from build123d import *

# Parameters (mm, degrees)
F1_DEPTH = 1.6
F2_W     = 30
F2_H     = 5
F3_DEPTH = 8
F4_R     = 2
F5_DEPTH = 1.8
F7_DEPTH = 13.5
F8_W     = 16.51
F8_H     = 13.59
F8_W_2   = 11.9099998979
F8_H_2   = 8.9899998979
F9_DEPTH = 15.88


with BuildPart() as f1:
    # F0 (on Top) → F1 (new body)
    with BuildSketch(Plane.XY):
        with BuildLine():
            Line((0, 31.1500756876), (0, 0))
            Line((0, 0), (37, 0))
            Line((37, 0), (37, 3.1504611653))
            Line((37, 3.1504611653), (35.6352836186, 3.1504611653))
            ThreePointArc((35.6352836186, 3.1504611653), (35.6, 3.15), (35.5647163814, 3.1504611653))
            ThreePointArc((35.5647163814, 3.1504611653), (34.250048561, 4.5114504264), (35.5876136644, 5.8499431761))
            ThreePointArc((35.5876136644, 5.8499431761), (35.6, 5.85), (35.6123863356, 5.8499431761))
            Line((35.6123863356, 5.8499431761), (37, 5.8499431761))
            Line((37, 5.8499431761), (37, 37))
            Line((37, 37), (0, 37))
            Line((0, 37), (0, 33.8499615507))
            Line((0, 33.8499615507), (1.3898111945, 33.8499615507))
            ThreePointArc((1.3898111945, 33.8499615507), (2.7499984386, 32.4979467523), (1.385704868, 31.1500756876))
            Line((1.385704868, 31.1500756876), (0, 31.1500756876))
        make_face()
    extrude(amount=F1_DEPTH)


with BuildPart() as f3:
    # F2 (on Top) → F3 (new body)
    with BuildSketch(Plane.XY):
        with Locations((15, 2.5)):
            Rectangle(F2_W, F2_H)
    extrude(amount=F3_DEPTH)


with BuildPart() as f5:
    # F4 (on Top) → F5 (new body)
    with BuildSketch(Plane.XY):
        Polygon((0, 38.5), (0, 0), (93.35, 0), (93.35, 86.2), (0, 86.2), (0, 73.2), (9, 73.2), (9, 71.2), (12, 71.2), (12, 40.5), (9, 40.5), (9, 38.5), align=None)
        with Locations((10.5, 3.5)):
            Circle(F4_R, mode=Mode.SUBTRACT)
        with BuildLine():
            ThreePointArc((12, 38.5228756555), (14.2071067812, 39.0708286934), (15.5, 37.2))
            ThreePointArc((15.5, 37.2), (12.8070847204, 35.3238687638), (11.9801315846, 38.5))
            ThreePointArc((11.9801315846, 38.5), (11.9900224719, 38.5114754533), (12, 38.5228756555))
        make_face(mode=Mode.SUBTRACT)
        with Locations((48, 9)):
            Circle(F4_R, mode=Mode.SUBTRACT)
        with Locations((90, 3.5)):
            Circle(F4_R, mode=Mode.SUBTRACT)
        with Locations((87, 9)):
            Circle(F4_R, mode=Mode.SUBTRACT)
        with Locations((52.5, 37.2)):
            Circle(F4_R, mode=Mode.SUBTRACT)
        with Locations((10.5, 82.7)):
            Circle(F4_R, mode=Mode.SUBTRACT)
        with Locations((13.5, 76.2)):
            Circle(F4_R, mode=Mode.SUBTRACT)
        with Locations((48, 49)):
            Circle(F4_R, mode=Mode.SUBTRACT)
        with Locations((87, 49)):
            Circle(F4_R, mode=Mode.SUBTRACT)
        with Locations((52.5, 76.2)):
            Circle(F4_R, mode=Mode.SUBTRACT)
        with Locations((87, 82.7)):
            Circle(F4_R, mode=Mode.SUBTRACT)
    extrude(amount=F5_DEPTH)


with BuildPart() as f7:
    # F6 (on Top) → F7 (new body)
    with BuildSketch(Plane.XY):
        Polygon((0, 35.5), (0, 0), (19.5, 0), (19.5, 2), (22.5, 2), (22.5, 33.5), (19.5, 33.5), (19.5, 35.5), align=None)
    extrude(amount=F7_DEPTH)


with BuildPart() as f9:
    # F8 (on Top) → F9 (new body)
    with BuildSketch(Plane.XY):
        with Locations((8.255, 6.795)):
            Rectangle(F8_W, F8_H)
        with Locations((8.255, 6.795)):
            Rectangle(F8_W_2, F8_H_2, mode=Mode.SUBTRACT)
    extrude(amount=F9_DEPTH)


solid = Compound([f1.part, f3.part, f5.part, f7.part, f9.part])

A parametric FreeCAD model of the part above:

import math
import FreeCAD as App
import Part
import Sketcher
from FreeCAD import Vector

doc = App.newDocument("Part")
params = doc.addObject("Spreadsheet::Sheet", "Params")
for row, (alias, value) in enumerate([
    ("sketch1_width", "37 mm"),
    ("sketch1_radius", "1.35 mm"),
    ("pad1_length", "1.6 mm"),
    ("sketch2_width", "30 mm"),
    ("sketch2_height", "5 mm"),
    ("pad2_length", "8 mm"),
    ("sketch3_diameter", "4 mm"),
    ("sketch3_width", "9 mm"),
    ("sketch3_width2", "3 mm"),
    ("sketch3_height", "13 mm"),
    ("sketch3_height2", "2 mm"),
    ("pad3_length", "1.8 mm"),
    ("sketch4_width", "3 mm"),
    ("sketch4_height", "2 mm"),
    ("sketch4_width2", "19.5 mm"),
    ("sketch4_height2", "35.5 mm"),
    ("pad4_length", "13.5 mm"),
    ("sketch5_width", "16.51 mm"),
    ("sketch5_width2", "11.91 mm"),
    ("sketch5_height", "13.59 mm"),
    ("sketch5_height2", "8.99 mm"),
    ("pad5_length", "15.88 mm"),
], start=1):
    params.set(f"A{row}", alias)
    params.set(f"B{row}", "=" + value)
    params.setAlias(f"B{row}", alias)

body = doc.addObject("PartDesign::Body", "Body")

# Sketch on XY plane
sketch1 = doc.addObject("Sketcher::SketchObject", "Sketch")
body.addObject(sketch1)
sketch1.AttachmentSupport = (doc.XY_Plane, [""])
sketch1.MapMode = "FlatFace"
sketch1.addGeometry(Part.LineSegment(Vector(0, 31.15, 0), Vector(0, 0, 0)), False)
sketch1.addGeometry(Part.LineSegment(Vector(0, 0, 0), Vector(37, 0, 0)), False)
sketch1.addGeometry(Part.LineSegment(Vector(37, 0, 0), Vector(37, 3.15, 0)), False)
sketch1.addGeometry(Part.LineSegment(Vector(37, 3.15, 0), Vector(35.635, 3.15, 0)), False)
sketch1.addGeometry(Part.ArcOfCircle(Part.Circle(Vector(35.6, 4.5, 0), Vector(0, 0, 1), 1.35), math.radians(-91.5), math.radians(-88.5)), False)
sketch1.addGeometry(Part.ArcOfCircle(Part.Circle(Vector(35.6, 4.5, 0), Vector(0, 0, 1), 1.35), math.radians(91), math.radians(269)), False)
sketch1.addGeometry(Part.ArcOfCircle(Part.Circle(Vector(35.6, 4.5, 0), Vector(0, 0, 1), 1.35), math.radians(89.47), math.radians(90.53)), False)
sketch1.addGeometry(Part.LineSegment(Vector(35.612, 5.85, 0), Vector(37, 5.85, 0)), False)
sketch1.addGeometry(Part.LineSegment(Vector(37, 5.85, 0), Vector(37, 37, 0)), False)
sketch1.addGeometry(Part.LineSegment(Vector(37, 37, 0), Vector(0, 37, 0)), False)
sketch1.addGeometry(Part.LineSegment(Vector(0, 37, 0), Vector(0, 33.85, 0)), False)
sketch1.addGeometry(Part.LineSegment(Vector(0, 33.85, 0), Vector(1.39, 33.85, 0)), False)
sketch1.addGeometry(Part.ArcOfCircle(Part.Circle(Vector(1.4, 32.5, 0), Vector(0, 0, 1), 1.35), math.radians(-91), math.radians(90)), False)
sketch1.addGeometry(Part.LineSegment(Vector(1.386, 31.15, 0), Vector(0, 31.15, 0)), False)
sketch1.addConstraint(Sketcher.Constraint("Coincident", 0, 2, 1, 1))
sketch1.addConstraint(Sketcher.Constraint("Coincident", 1, 2, 2, 1))
sketch1.addConstraint(Sketcher.Constraint("Coincident", 2, 2, 3, 1))
sketch1.addConstraint(Sketcher.Constraint("Coincident", 3, 2, 4, 2))
sketch1.addConstraint(Sketcher.Constraint("Tangent", 4, 1, 5, 2))
sketch1.addConstraint(Sketcher.Constraint("Tangent", 5, 1, 6, 2))
sketch1.addConstraint(Sketcher.Constraint("Coincident", 6, 1, 7, 1))
sketch1.addConstraint(Sketcher.Constraint("Coincident", 7, 2, 8, 1))
sketch1.addConstraint(Sketcher.Constraint("Coincident", 8, 2, 9, 1))
sketch1.addConstraint(Sketcher.Constraint("Coincident", 9, 2, 10, 1))
sketch1.addConstraint(Sketcher.Constraint("Coincident", 10, 2, 11, 1))
sketch1.addConstraint(Sketcher.Constraint("Coincident", 11, 2, 12, 2))
sketch1.addConstraint(Sketcher.Constraint("Coincident", 12, 1, 13, 1))
sketch1.addConstraint(Sketcher.Constraint("Coincident", 13, 2, 0, 1))
sketch1.addConstraint(Sketcher.Constraint("Vertical", 0))
sketch1.addConstraint(Sketcher.Constraint("Horizontal", 1))
sketch1.addConstraint(Sketcher.Constraint("Vertical", 2))
sketch1.addConstraint(Sketcher.Constraint("Horizontal", 3))
sketch1.addConstraint(Sketcher.Constraint("Horizontal", 7))
sketch1.addConstraint(Sketcher.Constraint("Vertical", 8))
sketch1.addConstraint(Sketcher.Constraint("Horizontal", 9))
sketch1.addConstraint(Sketcher.Constraint("Vertical", 10))
sketch1.addConstraint(Sketcher.Constraint("Horizontal", 11))
sketch1.addConstraint(Sketcher.Constraint("Horizontal", 13))
sketch1.addConstraint(Sketcher.Constraint("Coincident", 0, 2, -1, 1))
sketch1.addConstraint(Sketcher.Constraint("Coincident", 6, 3, 4, 3))
sketch1.addConstraint(Sketcher.Constraint("Equal", 6, 12))
sketch1.addConstraint(Sketcher.Constraint("PointOnObject", 9, 2, -2))
sketch1.addConstraint(Sketcher.Constraint("Horizontal", 3, 2, 4, 1))
sketch1.addConstraint(Sketcher.Constraint("Horizontal", 5, 1, 6, 1))
sketch1.addConstraint(Sketcher.Constraint("Vertical", 2, 2, 7, 2))
sketch1.addConstraint(Sketcher.Constraint("DistanceX", 1, 1, 1, 2, 37.0))
sketch1.addConstraint(Sketcher.Constraint("Radius", 4, 1.35))
sketch1.addConstraint(Sketcher.Constraint("DistanceY", -1, 1, 8, 2, 37.0))
sketch1.addConstraint(Sketcher.Constraint("DistanceY", 4, 3, 12, 3, 28.0))
sketch1.addConstraint(Sketcher.Constraint("DistanceX", -1, 1, 4, 3, 35.6))
sketch1.addConstraint(Sketcher.Constraint("DistanceY", -1, 1, 4, 3, 4.5))
sketch1.addConstraint(Sketcher.Constraint("DistanceX", -1, 1, 12, 3, 1.4))
sketch1.addConstraint(Sketcher.Constraint("DistanceX", 11, 1, 11, 2, 1.389811))
sketch1.addConstraint(Sketcher.Constraint("DistanceY", 2, 1, 2, 2, 3.150461))
sketch1.addConstraint(Sketcher.Constraint("DistanceX", 7, 1, 7, 2, 1.387614))
sketch1.addConstraint(Sketcher.Constraint("DistanceX", 13, 2, 13, 1, 1.385705))
sketch1.setExpression("Constraints[31]", "Params.sketch1_width")
sketch1.setExpression("Constraints[32]", "Params.sketch1_radius")
pad1 = doc.addObject("PartDesign::Pad", "Pad")
body.addObject(pad1)
pad1.Profile = sketch1
pad1.setExpression("Length", "Params.pad1_length")
body2 = doc.addObject("PartDesign::Body", "Body001")

# Sketch on XY plane
sketch2 = doc.addObject("Sketcher::SketchObject", "Sketch001")
body2.addObject(sketch2)
sketch2.AttachmentSupport = (doc.getObject("XY_Plane001"), [""])
sketch2.MapMode = "FlatFace"
sketch2.addGeometry(Part.LineSegment(Vector(0, 5, 0), Vector(0, 0, 0)), False)
sketch2.addGeometry(Part.LineSegment(Vector(0, 0, 0), Vector(30, 0, 0)), False)
sketch2.addGeometry(Part.LineSegment(Vector(30, 0, 0), Vector(30, 5, 0)), False)
sketch2.addGeometry(Part.LineSegment(Vector(30, 5, 0), Vector(0, 5, 0)), False)
sketch2.addConstraint(Sketcher.Constraint("Coincident", 0, 2, 1, 1))
sketch2.addConstraint(Sketcher.Constraint("Coincident", 1, 2, 2, 1))
sketch2.addConstraint(Sketcher.Constraint("Coincident", 2, 2, 3, 1))
sketch2.addConstraint(Sketcher.Constraint("Coincident", 3, 2, 0, 1))
sketch2.addConstraint(Sketcher.Constraint("Vertical", 0))
sketch2.addConstraint(Sketcher.Constraint("Horizontal", 1))
sketch2.addConstraint(Sketcher.Constraint("Vertical", 2))
sketch2.addConstraint(Sketcher.Constraint("Horizontal", 3))
sketch2.addConstraint(Sketcher.Constraint("Coincident", 0, 2, -1, 1))
sketch2.addConstraint(Sketcher.Constraint("DistanceX", 1, 1, 1, 2, 30.0))
sketch2.addConstraint(Sketcher.Constraint("DistanceY", 0, 2, 0, 1, 5.0))
sketch2.setExpression("Constraints[9]", "Params.sketch2_width")
sketch2.setExpression("Constraints[10]", "Params.sketch2_height")
pad2 = doc.addObject("PartDesign::Pad", "Pad001")
body2.addObject(pad2)
pad2.Profile = sketch2
pad2.setExpression("Length", "Params.pad2_length")
body3 = doc.addObject("PartDesign::Body", "Body002")

# Sketch on XY plane
sketch3 = doc.addObject("Sketcher::SketchObject", "Sketch002")
body3.addObject(sketch3)
sketch3.AttachmentSupport = (doc.getObject("XY_Plane002"), [""])
sketch3.MapMode = "FlatFace"
sketch3.addGeometry(Part.LineSegment(Vector(0, 38.5, 0), Vector(0, 0, 0)), False)
sketch3.addGeometry(Part.LineSegment(Vector(0, 0, 0), Vector(93.35, 0, 0)), False)
sketch3.addGeometry(Part.LineSegment(Vector(93.35, 0, 0), Vector(93.35, 86.2, 0)), False)
sketch3.addGeometry(Part.LineSegment(Vector(93.35, 86.2, 0), Vector(0, 86.2, 0)), False)
sketch3.addGeometry(Part.LineSegment(Vector(0, 86.2, 0), Vector(0, 73.2, 0)), False)
sketch3.addGeometry(Part.LineSegment(Vector(0, 73.2, 0), Vector(9, 73.2, 0)), False)
sketch3.addGeometry(Part.LineSegment(Vector(9, 73.2, 0), Vector(9, 71.2, 0)), False)
sketch3.addGeometry(Part.LineSegment(Vector(9, 71.2, 0), Vector(12, 71.2, 0)), False)
sketch3.addGeometry(Part.LineSegment(Vector(12, 71.2, 0), Vector(12, 40.5, 0)), False)
sketch3.addGeometry(Part.LineSegment(Vector(12, 40.5, 0), Vector(9, 40.5, 0)), False)
sketch3.addGeometry(Part.LineSegment(Vector(9, 40.5, 0), Vector(9, 38.5, 0)), False)
sketch3.addGeometry(Part.LineSegment(Vector(9, 38.5, 0), Vector(0, 38.5, 0)), False)
sketch3.addGeometry(Part.Circle(Vector(10.5, 3.5, 0), Vector(0, 0, 1), 2), False)
sketch3.addGeometry(Part.Circle(Vector(48, 9, 0), Vector(0, 0, 1), 2), False)
sketch3.addGeometry(Part.ArcOfCircle(Part.Circle(Vector(13.5, 37.2, 0), Vector(0, 0, 1), 2), math.radians(138.59), math.radians(139.46)), False)
sketch3.addGeometry(Part.ArcOfCircle(Part.Circle(Vector(13.5, 37.2, 0), Vector(0, 0, 1), 2), math.radians(0), math.radians(139)), False)
sketch3.addGeometry(Part.ArcOfCircle(Part.Circle(Vector(13.5, 37.2, 0), Vector(0, 0, 1), 2), math.radians(139), math.radians(360)), False)
sketch3.addGeometry(Part.Circle(Vector(90, 3.5, 0), Vector(0, 0, 1), 2), False)
sketch3.addGeometry(Part.Circle(Vector(87, 9, 0), Vector(0, 0, 1), 2), False)
sketch3.addGeometry(Part.Circle(Vector(52.5, 37.2, 0), Vector(0, 0, 1), 2), False)
sketch3.addGeometry(Part.Circle(Vector(48, 49, 0), Vector(0, 0, 1), 2), False)
sketch3.addGeometry(Part.Circle(Vector(13.5, 76.2, 0), Vector(0, 0, 1), 2), False)
sketch3.addGeometry(Part.Circle(Vector(10.5, 82.7, 0), Vector(0, 0, 1), 2), False)
sketch3.addGeometry(Part.Circle(Vector(87, 49, 0), Vector(0, 0, 1), 2), False)
sketch3.addGeometry(Part.Circle(Vector(52.5, 76.2, 0), Vector(0, 0, 1), 2), False)
sketch3.addGeometry(Part.Circle(Vector(87, 82.7, 0), Vector(0, 0, 1), 2), False)
sketch3.addConstraint(Sketcher.Constraint("Coincident", 0, 2, 1, 1))
sketch3.addConstraint(Sketcher.Constraint("Coincident", 1, 2, 2, 1))
sketch3.addConstraint(Sketcher.Constraint("Coincident", 2, 2, 3, 1))
sketch3.addConstraint(Sketcher.Constraint("Coincident", 3, 2, 4, 1))
sketch3.addConstraint(Sketcher.Constraint("Coincident", 4, 2, 5, 1))
sketch3.addConstraint(Sketcher.Constraint("Coincident", 5, 2, 6, 1))
sketch3.addConstraint(Sketcher.Constraint("Coincident", 6, 2, 7, 1))
sketch3.addConstraint(Sketcher.Constraint("Coincident", 7, 2, 8, 1))
sketch3.addConstraint(Sketcher.Constraint("Coincident", 8, 2, 9, 1))
sketch3.addConstraint(Sketcher.Constraint("Coincident", 9, 2, 10, 1))
sketch3.addConstraint(Sketcher.Constraint("Coincident", 10, 2, 11, 1))
sketch3.addConstraint(Sketcher.Constraint("Coincident", 11, 2, 0, 1))
sketch3.addConstraint(Sketcher.Constraint("Tangent", 14, 1, 15, 2))
sketch3.addConstraint(Sketcher.Constraint("Tangent", 15, 1, 16, 2))
sketch3.addConstraint(Sketcher.Constraint("Tangent", 16, 1, 14, 2))
sketch3.addConstraint(Sketcher.Constraint("Vertical", 0))
sketch3.addConstraint(Sketcher.Constraint("Horizontal", 1))
sketch3.addConstraint(Sketcher.Constraint("Vertical", 2))
sketch3.addConstraint(Sketcher.Constraint("Horizontal", 3))
sketch3.addConstraint(Sketcher.Constraint("Vertical", 4))
sketch3.addConstraint(Sketcher.Constraint("Horizontal", 5))
sketch3.addConstraint(Sketcher.Constraint("Vertical", 6))
sketch3.addConstraint(Sketcher.Constraint("Horizontal", 7))
sketch3.addConstraint(Sketcher.Constraint("Vertical", 8))
sketch3.addConstraint(Sketcher.Constraint("Horizontal", 9))
sketch3.addConstraint(Sketcher.Constraint("Vertical", 10))
sketch3.addConstraint(Sketcher.Constraint("Horizontal", 11))
sketch3.addConstraint(Sketcher.Constraint("Coincident", 0, 2, -1, 1))
sketch3.addConstraint(Sketcher.Constraint("Equal", 12, 13))
sketch3.addConstraint(Sketcher.Constraint("Equal", 13, 14))
sketch3.addConstraint(Sketcher.Constraint("Equal", 16, 17))
sketch3.addConstraint(Sketcher.Constraint("Equal", 17, 18))
sketch3.addConstraint(Sketcher.Constraint("Equal", 18, 19))
sketch3.addConstraint(Sketcher.Constraint("Equal", 19, 20))
sketch3.addConstraint(Sketcher.Constraint("Equal", 20, 21))
sketch3.addConstraint(Sketcher.Constraint("Equal", 21, 22))
sketch3.addConstraint(Sketcher.Constraint("Equal", 22, 23))
sketch3.addConstraint(Sketcher.Constraint("Equal", 23, 24))
sketch3.addConstraint(Sketcher.Constraint("Equal", 24, 25))
sketch3.addConstraint(Sketcher.Constraint("PointOnObject", 3, 2, -2))
sketch3.addConstraint(Sketcher.Constraint("Horizontal", 12, 3, 17, 3))
sketch3.addConstraint(Sketcher.Constraint("Horizontal", 13, 3, 18, 3))
sketch3.addConstraint(Sketcher.Constraint("Horizontal", 16, 3, 19, 3))
sketch3.addConstraint(Sketcher.Constraint("Horizontal", 20, 3, 23, 3))
sketch3.addConstraint(Sketcher.Constraint("Horizontal", 21, 3, 24, 3))
sketch3.addConstraint(Sketcher.Constraint("Horizontal", 22, 3, 25, 3))
sketch3.addConstraint(Sketcher.Constraint("Horizontal", 19, 3, 15, 1))
sketch3.addConstraint(Sketcher.Constraint("Horizontal", 11, 2, 16, 1))
sketch3.addConstraint(Sketcher.Constraint("Vertical", 13, 3, 20, 3))
sketch3.addConstraint(Sketcher.Constraint("Vertical", 16, 3, 21, 3))
sketch3.addConstraint(Sketcher.Constraint("Vertical", 12, 3, 22, 3))
sketch3.addConstraint(Sketcher.Constraint("Vertical", 18, 3, 23, 3))
sketch3.addConstraint(Sketcher.Constraint("Vertical", 19, 3, 24, 3))
sketch3.addConstraint(Sketcher.Constraint("Vertical", 23, 3, 25, 3))
sketch3.addConstraint(Sketcher.Constraint("Vertical", 6, 2, 9, 2))
sketch3.addConstraint(Sketcher.Constraint("Vertical", 8, 2, 14, 1))
sketch3.addConstraint(Sketcher.Constraint("Equal", 6, 10))
sketch3.addConstraint(Sketcher.Constraint("Diameter", 12, 4.0))
sketch3.addConstraint(Sketcher.Constraint("DistanceX", 5, 1, 5, 2, 9.0))
sketch3.addConstraint(Sketcher.Constraint("DistanceX", 7, 1, 7, 2, 3.0))
sketch3.addConstraint(Sketcher.Constraint("DistanceY", 4, 2, 4, 1, 13.0))
sketch3.addConstraint(Sketcher.Constraint("DistanceY", 6, 2, 6, 1, 2.0))
sketch3.addConstraint(Sketcher.Constraint("DistanceY", 0, 2, 0, 1, 38.5))
sketch3.addConstraint(Sketcher.Constraint("DistanceY", 2, 1, 2, 2, 86.2))
sketch3.addConstraint(Sketcher.Constraint("DistanceX", -1, 1, 13, 3, 48.0))
sketch3.addConstraint(Sketcher.Constraint("DistanceY", -1, 1, 13, 3, 9.0))
sketch3.addConstraint(Sketcher.Constraint("DistanceX", -1, 1, 17, 3, 90.0))
sketch3.addConstraint(Sketcher.Constraint("DistanceX", -1, 1, 18, 3, 87.0))
sketch3.addConstraint(Sketcher.Constraint("DistanceY", -1, 1, 20, 3, 49.0))
sketch3.addConstraint(Sketcher.Constraint("DistanceX", 12, 3, 14, 3, 3.0))
sketch3.addConstraint(Sketcher.Constraint("DistanceX", 14, 3, 19, 3, 39.0))
sketch3.addConstraint(Sketcher.Constraint("DistanceY", 15, 3, 21, 3, 39.0))
sketch3.addConstraint(Sketcher.Constraint("DistanceY", 24, 3, 2, 2, 10.0))
sketch3.addConstraint(Sketcher.Constraint("DistanceX", 1, 1, 1, 2, 93.35))
sketch3.addConstraint(Sketcher.Constraint("DistanceX", -1, 1, 12, 3, 10.5))
sketch3.addConstraint(Sketcher.Constraint("DistanceY", -1, 1, 12, 3, 3.5))
sketch3.addConstraint(Sketcher.Constraint("DistanceY", -1, 1, 22, 3, 82.7))
sketch3.setExpression("Constraints[57]", "Params.sketch3_diameter")
sketch3.setExpression("Constraints[58]", "Params.sketch3_width")
sketch3.setExpression("Constraints[59]", "Params.sketch3_width2")
sketch3.setExpression("Constraints[60]", "Params.sketch3_height")
sketch3.setExpression("Constraints[61]", "Params.sketch3_height2")
pad3 = doc.addObject("PartDesign::Pad", "Pad002")
body3.addObject(pad3)
pad3.Profile = sketch3
pad3.setExpression("Length", "Params.pad3_length")
body4 = doc.addObject("PartDesign::Body", "Body003")

# Sketch on XY plane
sketch4 = doc.addObject("Sketcher::SketchObject", "Sketch003")
body4.addObject(sketch4)
sketch4.AttachmentSupport = (doc.getObject("XY_Plane003"), [""])
sketch4.MapMode = "FlatFace"
sketch4.addGeometry(Part.LineSegment(Vector(0, 35.5, 0), Vector(0, 0, 0)), False)
sketch4.addGeometry(Part.LineSegment(Vector(0, 0, 0), Vector(19.5, 0, 0)), False)
sketch4.addGeometry(Part.LineSegment(Vector(19.5, 0, 0), Vector(19.5, 2, 0)), False)
sketch4.addGeometry(Part.LineSegment(Vector(19.5, 2, 0), Vector(22.5, 2, 0)), False)
sketch4.addGeometry(Part.LineSegment(Vector(22.5, 2, 0), Vector(22.5, 33.5, 0)), False)
sketch4.addGeometry(Part.LineSegment(Vector(22.5, 33.5, 0), Vector(19.5, 33.5, 0)), False)
sketch4.addGeometry(Part.LineSegment(Vector(19.5, 33.5, 0), Vector(19.5, 35.5, 0)), False)
sketch4.addGeometry(Part.LineSegment(Vector(19.5, 35.5, 0), Vector(0, 35.5, 0)), False)
sketch4.addConstraint(Sketcher.Constraint("Coincident", 0, 2, 1, 1))
sketch4.addConstraint(Sketcher.Constraint("Coincident", 1, 2, 2, 1))
sketch4.addConstraint(Sketcher.Constraint("Coincident", 2, 2, 3, 1))
sketch4.addConstraint(Sketcher.Constraint("Coincident", 3, 2, 4, 1))
sketch4.addConstraint(Sketcher.Constraint("Coincident", 4, 2, 5, 1))
sketch4.addConstraint(Sketcher.Constraint("Coincident", 5, 2, 6, 1))
sketch4.addConstraint(Sketcher.Constraint("Coincident", 6, 2, 7, 1))
sketch4.addConstraint(Sketcher.Constraint("Coincident", 7, 2, 0, 1))
sketch4.addConstraint(Sketcher.Constraint("Vertical", 0))
sketch4.addConstraint(Sketcher.Constraint("Horizontal", 1))
sketch4.addConstraint(Sketcher.Constraint("Vertical", 2))
sketch4.addConstraint(Sketcher.Constraint("Horizontal", 3))
sketch4.addConstraint(Sketcher.Constraint("Vertical", 4))
sketch4.addConstraint(Sketcher.Constraint("Horizontal", 5))
sketch4.addConstraint(Sketcher.Constraint("Vertical", 6))
sketch4.addConstraint(Sketcher.Constraint("Horizontal", 7))
sketch4.addConstraint(Sketcher.Constraint("Coincident", 0, 2, -1, 1))
sketch4.addConstraint(Sketcher.Constraint("Vertical", 2, 2, 5, 2))
sketch4.addConstraint(Sketcher.Constraint("Equal", 2, 6))
sketch4.addConstraint(Sketcher.Constraint("DistanceX", 3, 1, 3, 2, 3.0))
sketch4.addConstraint(Sketcher.Constraint("DistanceY", 2, 1, 2, 2, 2.0))
sketch4.addConstraint(Sketcher.Constraint("DistanceX", 1, 1, 1, 2, 19.5))
sketch4.addConstraint(Sketcher.Constraint("DistanceY", 0, 2, 0, 1, 35.5))
sketch4.setExpression("Constraints[19]", "Params.sketch4_width")
sketch4.setExpression("Constraints[20]", "Params.sketch4_height")
sketch4.setExpression("Constraints[21]", "Params.sketch4_width2")
sketch4.setExpression("Constraints[22]", "Params.sketch4_height2")
pad4 = doc.addObject("PartDesign::Pad", "Pad003")
body4.addObject(pad4)
pad4.Profile = sketch4
pad4.setExpression("Length", "Params.pad4_length")
body5 = doc.addObject("PartDesign::Body", "Body004")

# Sketch on XY plane
sketch5 = doc.addObject("Sketcher::SketchObject", "Sketch004")
body5.addObject(sketch5)
sketch5.AttachmentSupport = (doc.getObject("XY_Plane004"), [""])
sketch5.MapMode = "FlatFace"
sketch5.addGeometry(Part.LineSegment(Vector(0, 14, 0), Vector(0, 0, 0)), False)
sketch5.addGeometry(Part.LineSegment(Vector(0, 0, 0), Vector(17, 0, 0)), False)
sketch5.addGeometry(Part.LineSegment(Vector(17, 0, 0), Vector(17, 14, 0)), False)
sketch5.addGeometry(Part.LineSegment(Vector(17, 14, 0), Vector(0, 14, 0)), False)
sketch5.addGeometry(Part.LineSegment(Vector(14, 2, 0), Vector(2, 2, 0)), False)
sketch5.addGeometry(Part.LineSegment(Vector(2, 2, 0), Vector(2, 11, 0)), False)
sketch5.addGeometry(Part.LineSegment(Vector(2, 11, 0), Vector(14, 11, 0)), False)
sketch5.addGeometry(Part.LineSegment(Vector(14, 11, 0), Vector(14, 2, 0)), False)
sketch5.addConstraint(Sketcher.Constraint("Coincident", 0, 2, 1, 1))
sketch5.addConstraint(Sketcher.Constraint("Coincident", 1, 2, 2, 1))
sketch5.addConstraint(Sketcher.Constraint("Coincident", 2, 2, 3, 1))
sketch5.addConstraint(Sketcher.Constraint("Coincident", 3, 2, 0, 1))
sketch5.addConstraint(Sketcher.Constraint("Coincident", 4, 2, 5, 1))
sketch5.addConstraint(Sketcher.Constraint("Coincident", 5, 2, 6, 1))
sketch5.addConstraint(Sketcher.Constraint("Coincident", 6, 2, 7, 1))
sketch5.addConstraint(Sketcher.Constraint("Coincident", 7, 2, 4, 1))
sketch5.addConstraint(Sketcher.Constraint("Vertical", 0))
sketch5.addConstraint(Sketcher.Constraint("Horizontal", 1))
sketch5.addConstraint(Sketcher.Constraint("Vertical", 2))
sketch5.addConstraint(Sketcher.Constraint("Horizontal", 3))
sketch5.addConstraint(Sketcher.Constraint("Horizontal", 4))
sketch5.addConstraint(Sketcher.Constraint("Vertical", 5))
sketch5.addConstraint(Sketcher.Constraint("Horizontal", 6))
sketch5.addConstraint(Sketcher.Constraint("Vertical", 7))
sketch5.addConstraint(Sketcher.Constraint("Coincident", 0, 2, -1, 1))
sketch5.addConstraint(Sketcher.Constraint("DistanceX", 1, 1, 1, 2, 16.51))
sketch5.addConstraint(Sketcher.Constraint("DistanceX", 4, 2, 4, 1, 11.91))
sketch5.addConstraint(Sketcher.Constraint("DistanceY", 0, 2, 0, 1, 13.59))
sketch5.addConstraint(Sketcher.Constraint("DistanceY", 5, 1, 5, 2, 8.99))
sketch5.addConstraint(Sketcher.Constraint("DistanceX", -1, 1, 4, 2, 2.3))
sketch5.addConstraint(Sketcher.Constraint("DistanceY", -1, 1, 4, 2, 2.3))
sketch5.setExpression("Constraints[17]", "Params.sketch5_width")
sketch5.setExpression("Constraints[18]", "Params.sketch5_width2")
sketch5.setExpression("Constraints[19]", "Params.sketch5_height")
sketch5.setExpression("Constraints[20]", "Params.sketch5_height2")
pad5 = doc.addObject("PartDesign::Pad", "Pad004")
body5.addObject(pad5)
pad5.Profile = sketch5
pad5.setExpression("Length", "Params.pad5_length")

doc.recompute()
